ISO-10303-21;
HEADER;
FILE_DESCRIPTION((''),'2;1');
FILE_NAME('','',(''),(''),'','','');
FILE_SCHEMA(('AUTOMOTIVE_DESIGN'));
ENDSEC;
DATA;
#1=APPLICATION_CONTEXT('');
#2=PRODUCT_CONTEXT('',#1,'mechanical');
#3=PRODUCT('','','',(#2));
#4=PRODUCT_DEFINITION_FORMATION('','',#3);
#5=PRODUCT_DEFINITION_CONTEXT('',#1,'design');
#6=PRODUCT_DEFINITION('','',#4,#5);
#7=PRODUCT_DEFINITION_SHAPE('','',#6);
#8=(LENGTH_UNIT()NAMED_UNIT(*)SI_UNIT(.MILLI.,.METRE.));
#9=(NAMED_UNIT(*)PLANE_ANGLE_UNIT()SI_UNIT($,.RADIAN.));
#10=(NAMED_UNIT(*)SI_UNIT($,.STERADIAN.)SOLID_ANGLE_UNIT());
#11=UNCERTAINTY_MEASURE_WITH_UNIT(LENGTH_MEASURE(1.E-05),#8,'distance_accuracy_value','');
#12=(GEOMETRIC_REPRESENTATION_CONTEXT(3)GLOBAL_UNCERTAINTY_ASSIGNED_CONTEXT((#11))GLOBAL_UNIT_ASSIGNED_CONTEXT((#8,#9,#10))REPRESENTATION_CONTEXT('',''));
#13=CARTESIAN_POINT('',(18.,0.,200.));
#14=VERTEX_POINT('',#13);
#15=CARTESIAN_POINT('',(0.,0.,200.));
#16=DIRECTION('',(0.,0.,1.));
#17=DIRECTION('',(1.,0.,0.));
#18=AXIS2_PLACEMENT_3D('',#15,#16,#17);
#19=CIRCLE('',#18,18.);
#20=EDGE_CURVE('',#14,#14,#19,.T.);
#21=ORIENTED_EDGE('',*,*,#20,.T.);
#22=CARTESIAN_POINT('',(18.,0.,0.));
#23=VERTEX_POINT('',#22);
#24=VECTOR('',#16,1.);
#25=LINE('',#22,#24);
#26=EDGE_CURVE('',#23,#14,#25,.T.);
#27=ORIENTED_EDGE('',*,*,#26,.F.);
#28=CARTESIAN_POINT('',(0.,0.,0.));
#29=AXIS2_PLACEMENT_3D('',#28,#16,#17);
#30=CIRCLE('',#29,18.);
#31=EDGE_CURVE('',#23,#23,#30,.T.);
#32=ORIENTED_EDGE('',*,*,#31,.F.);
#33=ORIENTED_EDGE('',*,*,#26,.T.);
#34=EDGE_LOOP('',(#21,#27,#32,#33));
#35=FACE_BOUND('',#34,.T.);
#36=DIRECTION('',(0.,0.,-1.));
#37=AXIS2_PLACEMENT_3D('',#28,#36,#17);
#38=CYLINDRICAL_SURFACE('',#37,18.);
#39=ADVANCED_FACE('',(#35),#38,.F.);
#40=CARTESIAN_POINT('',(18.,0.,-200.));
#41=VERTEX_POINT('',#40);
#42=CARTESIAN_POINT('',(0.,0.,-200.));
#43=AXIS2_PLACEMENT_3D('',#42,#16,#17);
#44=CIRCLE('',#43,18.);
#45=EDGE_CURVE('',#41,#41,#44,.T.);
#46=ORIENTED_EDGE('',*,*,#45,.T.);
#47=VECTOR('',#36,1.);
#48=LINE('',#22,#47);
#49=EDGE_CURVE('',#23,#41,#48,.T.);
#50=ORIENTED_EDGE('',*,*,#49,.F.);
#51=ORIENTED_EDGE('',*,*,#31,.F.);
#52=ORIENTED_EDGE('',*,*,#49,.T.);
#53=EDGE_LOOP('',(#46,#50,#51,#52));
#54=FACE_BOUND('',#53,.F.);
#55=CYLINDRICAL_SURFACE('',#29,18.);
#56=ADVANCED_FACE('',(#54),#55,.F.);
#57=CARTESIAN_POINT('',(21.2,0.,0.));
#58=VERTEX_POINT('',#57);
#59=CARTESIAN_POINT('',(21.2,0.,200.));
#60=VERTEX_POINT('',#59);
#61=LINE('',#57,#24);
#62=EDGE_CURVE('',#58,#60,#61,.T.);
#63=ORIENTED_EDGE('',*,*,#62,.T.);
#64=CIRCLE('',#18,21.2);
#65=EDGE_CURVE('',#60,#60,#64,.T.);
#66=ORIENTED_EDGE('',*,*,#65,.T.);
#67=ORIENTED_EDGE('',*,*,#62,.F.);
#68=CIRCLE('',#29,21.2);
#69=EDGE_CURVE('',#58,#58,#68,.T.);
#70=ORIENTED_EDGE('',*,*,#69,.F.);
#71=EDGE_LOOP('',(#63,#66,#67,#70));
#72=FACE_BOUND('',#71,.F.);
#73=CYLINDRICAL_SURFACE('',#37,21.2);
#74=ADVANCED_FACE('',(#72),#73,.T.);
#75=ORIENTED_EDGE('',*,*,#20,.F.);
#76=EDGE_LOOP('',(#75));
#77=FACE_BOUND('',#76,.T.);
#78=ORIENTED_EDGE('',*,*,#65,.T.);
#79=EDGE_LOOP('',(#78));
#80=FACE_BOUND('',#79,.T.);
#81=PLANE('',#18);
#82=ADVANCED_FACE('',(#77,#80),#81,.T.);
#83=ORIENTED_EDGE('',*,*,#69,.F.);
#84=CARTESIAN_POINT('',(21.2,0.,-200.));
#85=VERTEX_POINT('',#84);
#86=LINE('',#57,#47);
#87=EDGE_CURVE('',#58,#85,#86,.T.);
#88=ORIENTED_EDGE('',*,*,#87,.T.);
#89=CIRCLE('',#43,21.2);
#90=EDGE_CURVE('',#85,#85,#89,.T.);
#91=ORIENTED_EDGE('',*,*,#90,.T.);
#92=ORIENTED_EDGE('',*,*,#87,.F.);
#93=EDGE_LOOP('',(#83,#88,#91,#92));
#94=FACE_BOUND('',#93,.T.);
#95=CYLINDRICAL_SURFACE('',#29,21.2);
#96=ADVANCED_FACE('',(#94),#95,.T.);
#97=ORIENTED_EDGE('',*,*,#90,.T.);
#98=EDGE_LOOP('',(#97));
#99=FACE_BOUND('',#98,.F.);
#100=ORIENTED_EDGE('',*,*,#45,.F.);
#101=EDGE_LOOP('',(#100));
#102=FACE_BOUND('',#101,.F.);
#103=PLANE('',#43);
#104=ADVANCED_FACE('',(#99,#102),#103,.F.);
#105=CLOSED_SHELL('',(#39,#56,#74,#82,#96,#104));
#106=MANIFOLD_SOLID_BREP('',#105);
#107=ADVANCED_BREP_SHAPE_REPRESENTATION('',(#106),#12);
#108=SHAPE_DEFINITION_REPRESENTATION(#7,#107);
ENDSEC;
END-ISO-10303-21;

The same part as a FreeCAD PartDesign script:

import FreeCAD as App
import Part
import Sketcher
Q = App.Units.Quantity

doc = App.newDocument("Part")
body = doc.addObject("PartDesign::Body", "Body")

# Sketch on XY plane
sketch1 = body.newObject("Sketcher::SketchObject", "Sketch")
sketch1.AttachmentSupport = (doc.getObject("XY_Plane"), [""])
sketch1.MapMode = "FlatFace"
sketch1.addGeometry(Part.Circle(App.Vector(0, 0, 0), App.Vector(0, 0, 1), 21.2), False)
sketch1.addGeometry(Part.Circle(App.Vector(0, 0, 0), App.Vector(0, 0, 1), 18), False)
sketch1.addConstraint(Sketcher.Constraint("Coincident", 0, 3, -1, 1))
sketch1.addConstraint(Sketcher.Constraint("Coincident", 1, 3, -1, 1))
sketch1.addConstraint(Sketcher.Constraint("Diameter", 1, Q("36 mm")))
sketch1.addConstraint(Sketcher.Constraint("Diameter", 0, Q("42.4 mm")))
pad1 = body.newObject("PartDesign::Pad", "Pad")
pad1.Profile = sketch1
pad1.Length = 400
pad1.Midplane = True

doc.recompute()
